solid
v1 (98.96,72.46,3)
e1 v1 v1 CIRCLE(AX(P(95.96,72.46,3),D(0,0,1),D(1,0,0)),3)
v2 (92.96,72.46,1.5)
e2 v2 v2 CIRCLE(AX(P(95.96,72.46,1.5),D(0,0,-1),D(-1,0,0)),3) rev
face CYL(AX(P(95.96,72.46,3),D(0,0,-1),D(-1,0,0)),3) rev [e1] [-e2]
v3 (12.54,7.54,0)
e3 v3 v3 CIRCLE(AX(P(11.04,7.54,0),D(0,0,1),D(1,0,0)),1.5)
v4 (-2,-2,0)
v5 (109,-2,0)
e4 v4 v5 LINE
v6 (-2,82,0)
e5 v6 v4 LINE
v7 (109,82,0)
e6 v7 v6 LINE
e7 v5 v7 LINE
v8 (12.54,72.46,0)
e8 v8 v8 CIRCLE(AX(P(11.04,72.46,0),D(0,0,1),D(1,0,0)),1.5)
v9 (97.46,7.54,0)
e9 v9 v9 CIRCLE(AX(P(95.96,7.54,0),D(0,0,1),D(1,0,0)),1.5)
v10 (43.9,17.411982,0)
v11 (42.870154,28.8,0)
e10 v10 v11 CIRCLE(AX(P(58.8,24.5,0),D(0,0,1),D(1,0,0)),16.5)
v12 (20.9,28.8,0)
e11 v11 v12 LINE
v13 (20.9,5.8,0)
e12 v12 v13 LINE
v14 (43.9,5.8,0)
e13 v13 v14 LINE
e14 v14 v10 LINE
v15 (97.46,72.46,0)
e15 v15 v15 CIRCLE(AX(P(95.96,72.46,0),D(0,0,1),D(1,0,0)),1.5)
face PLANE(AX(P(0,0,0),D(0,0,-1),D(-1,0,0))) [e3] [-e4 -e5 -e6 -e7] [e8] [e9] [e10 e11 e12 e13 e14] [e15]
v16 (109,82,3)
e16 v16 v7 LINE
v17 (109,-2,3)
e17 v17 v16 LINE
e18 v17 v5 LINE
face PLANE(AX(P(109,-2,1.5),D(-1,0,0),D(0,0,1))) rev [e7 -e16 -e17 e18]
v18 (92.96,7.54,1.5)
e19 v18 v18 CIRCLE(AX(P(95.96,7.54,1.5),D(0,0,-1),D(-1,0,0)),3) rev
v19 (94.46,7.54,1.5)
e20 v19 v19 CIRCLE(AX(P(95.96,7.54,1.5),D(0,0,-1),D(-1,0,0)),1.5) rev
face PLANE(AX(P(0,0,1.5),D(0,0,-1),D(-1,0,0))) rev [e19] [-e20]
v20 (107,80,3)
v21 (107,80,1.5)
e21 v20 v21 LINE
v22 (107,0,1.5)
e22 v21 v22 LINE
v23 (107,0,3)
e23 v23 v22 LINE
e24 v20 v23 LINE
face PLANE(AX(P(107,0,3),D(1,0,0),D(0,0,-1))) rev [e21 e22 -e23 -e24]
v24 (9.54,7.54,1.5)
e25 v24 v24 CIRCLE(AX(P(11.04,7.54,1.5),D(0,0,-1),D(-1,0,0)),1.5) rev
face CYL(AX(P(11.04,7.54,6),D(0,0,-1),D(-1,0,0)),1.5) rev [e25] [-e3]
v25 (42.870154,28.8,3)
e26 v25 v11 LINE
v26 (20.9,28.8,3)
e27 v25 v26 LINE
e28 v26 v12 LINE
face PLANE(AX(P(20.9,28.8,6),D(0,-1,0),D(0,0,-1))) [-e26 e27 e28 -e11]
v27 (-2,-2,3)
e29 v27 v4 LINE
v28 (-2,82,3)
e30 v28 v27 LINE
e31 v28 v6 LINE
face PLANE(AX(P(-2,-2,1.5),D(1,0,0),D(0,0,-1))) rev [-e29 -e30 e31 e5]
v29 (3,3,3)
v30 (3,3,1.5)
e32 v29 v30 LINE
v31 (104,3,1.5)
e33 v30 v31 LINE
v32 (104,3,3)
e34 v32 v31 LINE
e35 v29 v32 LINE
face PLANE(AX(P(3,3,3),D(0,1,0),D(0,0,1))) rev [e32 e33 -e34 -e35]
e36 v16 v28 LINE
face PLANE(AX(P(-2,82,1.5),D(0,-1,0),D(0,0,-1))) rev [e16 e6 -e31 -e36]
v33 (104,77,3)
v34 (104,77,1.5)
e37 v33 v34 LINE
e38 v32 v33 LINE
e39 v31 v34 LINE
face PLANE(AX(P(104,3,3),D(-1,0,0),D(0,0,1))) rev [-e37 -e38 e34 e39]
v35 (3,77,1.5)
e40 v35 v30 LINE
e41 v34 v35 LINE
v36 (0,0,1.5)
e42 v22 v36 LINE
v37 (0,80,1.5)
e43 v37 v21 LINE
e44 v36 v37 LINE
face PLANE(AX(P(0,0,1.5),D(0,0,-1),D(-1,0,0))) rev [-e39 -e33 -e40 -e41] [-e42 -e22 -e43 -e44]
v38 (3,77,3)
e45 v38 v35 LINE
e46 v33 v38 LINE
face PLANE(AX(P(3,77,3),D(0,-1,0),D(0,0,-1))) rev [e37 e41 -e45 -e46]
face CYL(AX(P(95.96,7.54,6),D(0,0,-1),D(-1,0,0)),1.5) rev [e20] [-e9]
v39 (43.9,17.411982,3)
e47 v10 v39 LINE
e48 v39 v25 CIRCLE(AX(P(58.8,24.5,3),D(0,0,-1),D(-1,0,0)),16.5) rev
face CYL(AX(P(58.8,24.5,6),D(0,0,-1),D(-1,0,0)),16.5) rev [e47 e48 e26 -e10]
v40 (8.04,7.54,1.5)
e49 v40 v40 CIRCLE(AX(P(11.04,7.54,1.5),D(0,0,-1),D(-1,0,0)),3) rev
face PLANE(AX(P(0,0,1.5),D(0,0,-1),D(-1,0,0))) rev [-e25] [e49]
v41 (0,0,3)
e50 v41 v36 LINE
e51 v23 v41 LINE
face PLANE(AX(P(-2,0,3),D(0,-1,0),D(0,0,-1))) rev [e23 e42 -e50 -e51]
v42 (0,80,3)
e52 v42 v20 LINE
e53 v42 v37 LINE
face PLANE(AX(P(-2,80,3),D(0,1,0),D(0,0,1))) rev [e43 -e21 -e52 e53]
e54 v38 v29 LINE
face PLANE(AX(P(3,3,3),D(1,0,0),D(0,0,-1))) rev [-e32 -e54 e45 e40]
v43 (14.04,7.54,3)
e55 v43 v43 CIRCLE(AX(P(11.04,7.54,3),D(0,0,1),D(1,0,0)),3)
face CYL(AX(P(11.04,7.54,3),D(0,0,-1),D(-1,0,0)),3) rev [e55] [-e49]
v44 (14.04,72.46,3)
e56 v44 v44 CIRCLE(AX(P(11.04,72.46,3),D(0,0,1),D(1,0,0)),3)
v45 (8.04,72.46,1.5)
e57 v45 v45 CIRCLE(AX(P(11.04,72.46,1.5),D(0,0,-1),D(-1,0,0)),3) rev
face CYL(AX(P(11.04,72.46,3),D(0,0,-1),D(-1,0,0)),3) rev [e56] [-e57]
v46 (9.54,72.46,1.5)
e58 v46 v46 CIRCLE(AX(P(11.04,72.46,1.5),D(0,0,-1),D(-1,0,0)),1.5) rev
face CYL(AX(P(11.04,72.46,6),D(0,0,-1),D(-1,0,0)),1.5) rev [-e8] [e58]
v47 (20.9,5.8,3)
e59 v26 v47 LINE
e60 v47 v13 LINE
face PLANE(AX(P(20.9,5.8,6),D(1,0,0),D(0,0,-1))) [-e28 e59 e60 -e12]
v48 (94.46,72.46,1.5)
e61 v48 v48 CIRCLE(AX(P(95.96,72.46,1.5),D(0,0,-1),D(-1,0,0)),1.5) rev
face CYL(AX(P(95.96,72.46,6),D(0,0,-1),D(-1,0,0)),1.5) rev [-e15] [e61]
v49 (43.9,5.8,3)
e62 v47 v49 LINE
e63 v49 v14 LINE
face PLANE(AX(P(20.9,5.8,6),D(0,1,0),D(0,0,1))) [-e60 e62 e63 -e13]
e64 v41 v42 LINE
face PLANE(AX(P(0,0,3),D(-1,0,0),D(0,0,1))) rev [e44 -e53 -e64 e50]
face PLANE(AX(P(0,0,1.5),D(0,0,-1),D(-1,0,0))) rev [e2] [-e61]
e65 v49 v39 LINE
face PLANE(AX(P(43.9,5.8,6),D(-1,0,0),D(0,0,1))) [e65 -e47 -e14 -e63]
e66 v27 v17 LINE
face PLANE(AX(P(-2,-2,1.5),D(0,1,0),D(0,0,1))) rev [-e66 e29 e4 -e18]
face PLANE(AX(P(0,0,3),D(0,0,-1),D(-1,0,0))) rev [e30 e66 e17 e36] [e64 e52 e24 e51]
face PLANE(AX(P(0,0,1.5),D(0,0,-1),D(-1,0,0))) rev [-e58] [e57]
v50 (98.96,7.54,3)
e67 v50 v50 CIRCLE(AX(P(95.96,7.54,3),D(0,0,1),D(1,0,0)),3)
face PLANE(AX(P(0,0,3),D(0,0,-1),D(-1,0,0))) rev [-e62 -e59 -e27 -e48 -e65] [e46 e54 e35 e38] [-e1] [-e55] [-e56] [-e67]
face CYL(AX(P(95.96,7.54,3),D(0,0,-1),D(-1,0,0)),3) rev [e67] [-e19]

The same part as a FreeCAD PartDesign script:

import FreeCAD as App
import Part
import Sketcher
from FreeCAD import Vector


def add_polygon(sketch, points):
    """Adds a closed chain of lines whose ends are joined by coincident constraints."""
    first, n = sketch.GeometryCount, len(points)
    for a, b in zip(points, points[1:] + points[:1]):
        sketch.addGeometry(Part.LineSegment(App.Vector(*a, 0), App.Vector(*b, 0)), False)
    for i in range(n):
        sketch.addConstraint(Sketcher.Constraint("Coincident", first + i, 2, first + (i + 1) % n, 1))

doc = App.newDocument("Part")
body = doc.addObject("PartDesign::Body", "Body")

sketch1 = doc.addObject("Sketcher::SketchObject", "Sketch")
body.addObject(sketch1)
sketch1.AttachmentSupport = (doc.XY_Plane, [""])
sketch1.MapMode = "FlatFace"
add_polygon(sketch1, [(-2, 82), (-2, -2), (109, -2), (109, 82)])
sketch1.addConstraint([
    Sketcher.Constraint("Vertical", 0),
    Sketcher.Constraint("Horizontal", 1),
    Sketcher.Constraint("Vertical", 2),
    Sketcher.Constraint("Horizontal", 3),
    Sketcher.Constraint("DistanceX", 1, 1, 1, 2, 111.0),
    Sketcher.Constraint("DistanceY", 0, 2, 0, 1, 84.0),
    Sketcher.Constraint("DistanceX", 0, 2, -1, 1, 2.0),
    Sketcher.Constraint("DistanceY", 0, 2, -1, 1, 2.0),
])
pad1 = doc.addObject("PartDesign::Pad", "Pad")
body.addObject(pad1)
pad1.Profile = sketch1
pad1.Length = 1.5

sketch2 = doc.addObject("Sketcher::SketchObject", "Sketch001")
body.addObject(sketch2)
sketch2.AttachmentSupport = (doc.XY_Plane, [""])
sketch2.MapMode = "FlatFace"
add_polygon(sketch2, [(3, 77), (3, 3), (104, 3), (104, 77)])
sketch2.addGeometry(Part.Circle(Vector(11.04, 7.54, 0), Vector(0, 0, 1), 3), False)
sketch2.addGeometry(Part.Circle(Vector(95.96, 7.54, 0), Vector(0, 0, 1), 3), False)
sketch2.addGeometry(Part.Circle(Vector(11.04, 72.46, 0), Vector(0, 0, 1), 3), False)
sketch2.addGeometry(Part.Circle(Vector(95.96, 72.46, 0), Vector(0, 0, 1), 3), False)
sketch2.addConstraint([
    Sketcher.Constraint("Vertical", 0),
    Sketcher.Constraint("Horizontal", 1),
    Sketcher.Constraint("Vertical", 2),
    Sketcher.Constraint("Horizontal", 3),
    Sketcher.Constraint("Equal", 4, 5),
    Sketcher.Constraint("Equal", 5, 6),
    Sketcher.Constraint("Equal", 6, 7),
    Sketcher.Constraint("Horizontal", 4, 3, 5, 3),
    Sketcher.Constraint("Horizontal", 6, 3, 7, 3),
    Sketcher.Constraint("Vertical", 4, 3, 6, 3),
    Sketcher.Constraint("Vertical", 5, 3, 7, 3),
    Sketcher.Constraint("Diameter", 4, 6.0),
    Sketcher.Constraint("DistanceX", 1, 1, 1, 2, 101.0),
    Sketcher.Constraint("DistanceY", 0, 2, 0, 1, 74.0),
    Sketcher.Constraint("DistanceX", -1, 1, 0, 2, 3.0),
    Sketcher.Constraint("DistanceY", -1, 1, 0, 2, 3.0),
    Sketcher.Constraint("DistanceX", -1, 1, 4, 3, 11.04),
    Sketcher.Constraint("DistanceY", -1, 1, 4, 3, 7.54),
    Sketcher.Constraint("DistanceX", -1, 1, 5, 3, 95.96),
    Sketcher.Constraint("DistanceY", -1, 1, 6, 3, 72.46),
])
pad2 = doc.addObject("PartDesign::Pad", "Pad001")
body.addObject(pad2)
pad2.Profile = sketch2
pad2.Length = 3

sketch3 = doc.addObject("Sketcher::SketchObject", "Sketch002")
body.addObject(sketch3)
sketch3.AttachmentSupport = (doc.XY_Plane, [""])
sketch3.MapMode = "FlatFace"
add_polygon(sketch3, [(-2, 0), (-2, -2), (109, -2), (109, 0)])
sketch3.addConstraint([
    Sketcher.Constraint("Vertical", 0),
    Sketcher.Constraint("Horizontal", 1),
    Sketcher.Constraint("Vertical", 2),
    Sketcher.Constraint("Horizontal", 3),
    Sketcher.Constraint("PointOnObject", 2, 2, -1),
    Sketcher.Constraint("DistanceX", 1, 1, 1, 2, 111.0),
    Sketcher.Constraint("DistanceY", 0, 2, 0, 1, 2.0),
    Sketcher.Constraint("DistanceX", 0, 2, -1, 1, 2.0),
])
pad3 = doc.addObject("PartDesign::Pad", "Pad002")
body.addObject(pad3)
pad3.Profile = sketch3
pad3.Length = 3

sketch4 = doc.addObject("Sketcher::SketchObject", "Sketch003")
body.addObject(sketch4)
sketch4.AttachmentSupport = (doc.XY_Plane, [""])
sketch4.MapMode = "FlatFace"
add_polygon(sketch4, [(-2, 82), (-2, 80), (109, 80), (109, 82)])
sketch4.addConstraint([
    Sketcher.Constraint("Vertical", 0),
    Sketcher.Constraint("Horizontal", 1),
    Sketcher.Constraint("Vertical", 2),
    Sketcher.Constraint("Horizontal", 3),
    Sketcher.Constraint("DistanceX", 1, 1, 1, 2, 111.0),
    Sketcher.Constraint("DistanceY", 0, 2, 0, 1, 2.0),
    Sketcher.Constraint("DistanceX", 0, 2, -1, 1, 2.0),
    Sketcher.Constraint("DistanceY", -1, 1, 0, 2, 80.0),
])
pad4 = doc.addObject("PartDesign::Pad", "Pad003")
body.addObject(pad4)
pad4.Profile = sketch4
pad4.Length = 3

sketch5 = doc.addObject("Sketcher::SketchObject", "Sketch004")
body.addObject(sketch5)
sketch5.AttachmentSupport = (doc.XY_Plane, [""])
sketch5.MapMode = "FlatFace"
add_polygon(sketch5, [(-2, 80), (-2, 0), (0, 0), (0, 80)])
sketch5.addConstraint([
    Sketcher.Constraint("Vertical", 0),
    Sketcher.Constraint("Horizontal", 1),
    Sketcher.Constraint("Vertical", 2),
    Sketcher.Constraint("Horizontal", 3),
    Sketcher.Constraint("Coincident", 1, 2, -1, 1),
    Sketcher.Constraint("DistanceX", 1, 1, 1, 2, 2.0),
    Sketcher.Constraint("DistanceY", 0, 2, 0, 1, 80.0),
])
pad5 = doc.addObject("PartDesign::Pad", "Pad004")
body.addObject(pad5)
pad5.Profile = sketch5
pad5.Length = 3

sketch6 = doc.addObject("Sketcher::SketchObject", "Sketch005")
body.addObject(sketch6)
sketch6.AttachmentSupport = (doc.XY_Plane, [""])
sketch6.MapMode = "FlatFace"
add_polygon(sketch6, [(107, 80), (107, 0), (109, 0), (109, 80)])
sketch6.addConstraint([
    Sketcher.Constraint("Vertical", 0),
    Sketcher.Constraint("Horizontal", 1),
    Sketcher.Constraint("Vertical", 2),
    Sketcher.Constraint("Horizontal", 3),
    Sketcher.Constraint("PointOnObject", 0, 2, -1),
    Sketcher.Constraint("DistanceX", 1, 1, 1, 2, 2.0),
    Sketcher.Constraint("DistanceY", 0, 2, 0, 1, 80.0),
    Sketcher.Constraint("DistanceX", -1, 1, 0, 2, 107.0),
])
pad6 = doc.addObject("PartDesign::Pad", "Pad005")
body.addObject(pad6)
pad6.Profile = sketch6
pad6.Length = 3

sketch7 = doc.addObject("Sketcher::SketchObject", "Sketch006")
body.addObject(sketch7)
sketch7.AttachmentSupport = (doc.XY_Plane, [""])
sketch7.MapMode = "FlatFace"
sketch7.addGeometry([
    Part.Circle(Vector(11.04, 7.54, 0), Vector(0, 0, 1), 1.5),
    Part.Circle(Vector(95.96, 7.54, 0), Vector(0, 0, 1), 1.5),
    Part.Circle(Vector(11.04, 72.46, 0), Vector(0, 0, 1), 1.5),
    Part.Circle(Vector(95.96, 72.46, 0), Vector(0, 0, 1), 1.5),
], False)
sketch7.addConstraint([
    Sketcher.Constraint("Equal", 0, 1),
    Sketcher.Constraint("Equal", 1, 2),
    Sketcher.Constraint("Equal", 2, 3),
    Sketcher.Constraint("Horizontal", 0, 3, 1, 3),
    Sketcher.Constraint("Horizontal", 2, 3, 3, 3),
    Sketcher.Constraint("Vertical", 0, 3, 2, 3),
    Sketcher.Constraint("Vertical", 1, 3, 3, 3),
    Sketcher.Constraint("Diameter", 0, 3.0),
    Sketcher.Constraint("DistanceX", -1, 1, 0, 3, 11.04),
    Sketcher.Constraint("DistanceY", -1, 1, 0, 3, 7.54),
    Sketcher.Constraint("DistanceX", -1, 1, 1, 3, 95.96),
    Sketcher.Constraint("DistanceY", -1, 1, 2, 3, 72.46),
])
pocket1 = doc.addObject("PartDesign::Pocket", "Pocket")
body.addObject(pocket1)
pocket1.Profile = sketch7
pocket1.Length = 1.5
pocket1.Reversed = True

sketch8 = doc.addObject("Sketcher::SketchObject", "Sketch007")
body.addObject(sketch8)
sketch8.AttachmentSupport = (doc.XY_Plane, [""])
sketch8.MapMode = "FlatFace"
sketch8.addGeometry(Part.Circle(Vector(58.8, 24.5, 0), Vector(0, 0, 1), 16.5), False)
sketch8.addConstraint([
    Sketcher.Constraint("Diameter", 0, 33.0),
    Sketcher.Constraint("DistanceX", -1, 1, 0, 3, 58.8),
    Sketcher.Constraint("DistanceY", -1, 1, 0, 3, 24.5),
])
pocket2 = doc.addObject("PartDesign::Pocket", "Pocket001")
body.addObject(pocket2)
pocket2.Profile = sketch8
pocket2.Length = 3
pocket2.Reversed = True

sketch9 = doc.addObject("Sketcher::SketchObject", "Sketch008")
body.addObject(sketch9)
sketch9.AttachmentSupport = (doc.XY_Plane, [""])
sketch9.MapMode = "FlatFace"
add_polygon(sketch9, [(20.9, 28.8), (20.9, 5.8), (43.9, 5.8), (43.9, 28.8)])
sketch9.addConstraint([
    Sketcher.Constraint("Vertical", 0),
    Sketcher.Constraint("Horizontal", 1),
    Sketcher.Constraint("Vertical", 2),
    Sketcher.Constraint("Horizontal", 3),
    Sketcher.Constraint("Equal", 3, 0),
    Sketcher.Constraint("DistanceX", 1, 1, 1, 2, 23.0),
    Sketcher.Constraint("DistanceX", -1, 1, 0, 2, 20.9),
    Sketcher.Constraint("DistanceY", -1, 1, 0, 2, 5.8),
])
pocket3 = doc.addObject("PartDesign::Pocket", "Pocket002")
body.addObject(pocket3)
pocket3.Profile = sketch9
pocket3.Length = 3
pocket3.Reversed = True

doc.recompute()
